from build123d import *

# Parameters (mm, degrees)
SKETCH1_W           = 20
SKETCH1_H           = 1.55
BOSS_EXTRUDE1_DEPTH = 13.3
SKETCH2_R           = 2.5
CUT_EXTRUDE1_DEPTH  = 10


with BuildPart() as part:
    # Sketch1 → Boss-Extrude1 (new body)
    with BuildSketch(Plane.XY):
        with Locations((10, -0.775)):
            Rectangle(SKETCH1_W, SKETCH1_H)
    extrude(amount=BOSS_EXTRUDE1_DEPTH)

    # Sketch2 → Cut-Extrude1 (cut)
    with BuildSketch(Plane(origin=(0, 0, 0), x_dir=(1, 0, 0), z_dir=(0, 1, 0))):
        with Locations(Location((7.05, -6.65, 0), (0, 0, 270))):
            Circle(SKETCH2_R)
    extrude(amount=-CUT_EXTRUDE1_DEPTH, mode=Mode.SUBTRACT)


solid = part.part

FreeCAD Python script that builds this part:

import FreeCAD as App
import Part
import Sketcher
Q = App.Units.Quantity


def add_polygon(sketch, points):
    """Adds a closed chain of lines whose ends are joined by coincident constraints."""
    first, n = sketch.GeometryCount, len(points)
    for a, b in zip(points, points[1:] + points[:1]):
        sketch.addGeometry(Part.LineSegment(App.Vector(*a, 0), App.Vector(*b, 0)), False)
    for i in range(n):
        sketch.addConstraint(Sketcher.Constraint("Coincident", first + i, 2, first + (i + 1) % n, 1))

doc = App.newDocument("Part")
body = doc.addObject("PartDesign::Body", "Body")

# Sketch on XY plane
sketch1 = body.newObject("Sketcher::SketchObject", "Sketch")
sketch1.AttachmentSupport = (doc.getObject("XY_Plane"), [""])
sketch1.MapMode = "FlatFace"
add_polygon(sketch1, [(0, 0), (0, -1.6), (20, -1.6), (20, 0)])  # lines 0-3
sketch1.addConstraint([
    Sketcher.Constraint("Vertical", 0),
    Sketcher.Constraint("Horizontal", 1),
    Sketcher.Constraint("Vertical", 2),
    Sketcher.Constraint("Horizontal", 3),
    Sketcher.Constraint("Coincident", 3, 2, -1, 1),
    Sketcher.Constraint("DistanceX", 1, 1, 1, 2, Q("20 mm")),
    Sketcher.Constraint("DistanceY", 0, 2, 0, 1, Q("1.55 mm")),
])
pad1 = body.newObject("PartDesign::Pad", "Pad")
pad1.Profile = sketch1
pad1.Length = 13.3

# Sketch on XZ plane
sketch2 = body.newObject("Sketcher::SketchObject", "Sketch001")
sketch2.AttachmentSupport = (doc.getObject("XZ_Plane"), [""])
sketch2.MapMode = "FlatFace"
sketch2.addGeometry(Part.Circle(App.Vector(7, 6.7, 0), App.Vector(0, 0, 1), 2.5), False)
sketch2.addConstraint([
    Sketcher.Constraint("Diameter", 0, Q("5 mm")),
    Sketcher.Constraint("DistanceX", -1, 1, 0, 3, Q("7.05 mm")),
    Sketcher.Constraint("DistanceY", -1, 1, 0, 3, Q("6.65 mm")),
])
pocket1 = body.newObject("PartDesign::Pocket", "Pocket")
pocket1.Profile = sketch2
pocket1.Length = 10
pocket1.Reversed = True

doc.recompute()
